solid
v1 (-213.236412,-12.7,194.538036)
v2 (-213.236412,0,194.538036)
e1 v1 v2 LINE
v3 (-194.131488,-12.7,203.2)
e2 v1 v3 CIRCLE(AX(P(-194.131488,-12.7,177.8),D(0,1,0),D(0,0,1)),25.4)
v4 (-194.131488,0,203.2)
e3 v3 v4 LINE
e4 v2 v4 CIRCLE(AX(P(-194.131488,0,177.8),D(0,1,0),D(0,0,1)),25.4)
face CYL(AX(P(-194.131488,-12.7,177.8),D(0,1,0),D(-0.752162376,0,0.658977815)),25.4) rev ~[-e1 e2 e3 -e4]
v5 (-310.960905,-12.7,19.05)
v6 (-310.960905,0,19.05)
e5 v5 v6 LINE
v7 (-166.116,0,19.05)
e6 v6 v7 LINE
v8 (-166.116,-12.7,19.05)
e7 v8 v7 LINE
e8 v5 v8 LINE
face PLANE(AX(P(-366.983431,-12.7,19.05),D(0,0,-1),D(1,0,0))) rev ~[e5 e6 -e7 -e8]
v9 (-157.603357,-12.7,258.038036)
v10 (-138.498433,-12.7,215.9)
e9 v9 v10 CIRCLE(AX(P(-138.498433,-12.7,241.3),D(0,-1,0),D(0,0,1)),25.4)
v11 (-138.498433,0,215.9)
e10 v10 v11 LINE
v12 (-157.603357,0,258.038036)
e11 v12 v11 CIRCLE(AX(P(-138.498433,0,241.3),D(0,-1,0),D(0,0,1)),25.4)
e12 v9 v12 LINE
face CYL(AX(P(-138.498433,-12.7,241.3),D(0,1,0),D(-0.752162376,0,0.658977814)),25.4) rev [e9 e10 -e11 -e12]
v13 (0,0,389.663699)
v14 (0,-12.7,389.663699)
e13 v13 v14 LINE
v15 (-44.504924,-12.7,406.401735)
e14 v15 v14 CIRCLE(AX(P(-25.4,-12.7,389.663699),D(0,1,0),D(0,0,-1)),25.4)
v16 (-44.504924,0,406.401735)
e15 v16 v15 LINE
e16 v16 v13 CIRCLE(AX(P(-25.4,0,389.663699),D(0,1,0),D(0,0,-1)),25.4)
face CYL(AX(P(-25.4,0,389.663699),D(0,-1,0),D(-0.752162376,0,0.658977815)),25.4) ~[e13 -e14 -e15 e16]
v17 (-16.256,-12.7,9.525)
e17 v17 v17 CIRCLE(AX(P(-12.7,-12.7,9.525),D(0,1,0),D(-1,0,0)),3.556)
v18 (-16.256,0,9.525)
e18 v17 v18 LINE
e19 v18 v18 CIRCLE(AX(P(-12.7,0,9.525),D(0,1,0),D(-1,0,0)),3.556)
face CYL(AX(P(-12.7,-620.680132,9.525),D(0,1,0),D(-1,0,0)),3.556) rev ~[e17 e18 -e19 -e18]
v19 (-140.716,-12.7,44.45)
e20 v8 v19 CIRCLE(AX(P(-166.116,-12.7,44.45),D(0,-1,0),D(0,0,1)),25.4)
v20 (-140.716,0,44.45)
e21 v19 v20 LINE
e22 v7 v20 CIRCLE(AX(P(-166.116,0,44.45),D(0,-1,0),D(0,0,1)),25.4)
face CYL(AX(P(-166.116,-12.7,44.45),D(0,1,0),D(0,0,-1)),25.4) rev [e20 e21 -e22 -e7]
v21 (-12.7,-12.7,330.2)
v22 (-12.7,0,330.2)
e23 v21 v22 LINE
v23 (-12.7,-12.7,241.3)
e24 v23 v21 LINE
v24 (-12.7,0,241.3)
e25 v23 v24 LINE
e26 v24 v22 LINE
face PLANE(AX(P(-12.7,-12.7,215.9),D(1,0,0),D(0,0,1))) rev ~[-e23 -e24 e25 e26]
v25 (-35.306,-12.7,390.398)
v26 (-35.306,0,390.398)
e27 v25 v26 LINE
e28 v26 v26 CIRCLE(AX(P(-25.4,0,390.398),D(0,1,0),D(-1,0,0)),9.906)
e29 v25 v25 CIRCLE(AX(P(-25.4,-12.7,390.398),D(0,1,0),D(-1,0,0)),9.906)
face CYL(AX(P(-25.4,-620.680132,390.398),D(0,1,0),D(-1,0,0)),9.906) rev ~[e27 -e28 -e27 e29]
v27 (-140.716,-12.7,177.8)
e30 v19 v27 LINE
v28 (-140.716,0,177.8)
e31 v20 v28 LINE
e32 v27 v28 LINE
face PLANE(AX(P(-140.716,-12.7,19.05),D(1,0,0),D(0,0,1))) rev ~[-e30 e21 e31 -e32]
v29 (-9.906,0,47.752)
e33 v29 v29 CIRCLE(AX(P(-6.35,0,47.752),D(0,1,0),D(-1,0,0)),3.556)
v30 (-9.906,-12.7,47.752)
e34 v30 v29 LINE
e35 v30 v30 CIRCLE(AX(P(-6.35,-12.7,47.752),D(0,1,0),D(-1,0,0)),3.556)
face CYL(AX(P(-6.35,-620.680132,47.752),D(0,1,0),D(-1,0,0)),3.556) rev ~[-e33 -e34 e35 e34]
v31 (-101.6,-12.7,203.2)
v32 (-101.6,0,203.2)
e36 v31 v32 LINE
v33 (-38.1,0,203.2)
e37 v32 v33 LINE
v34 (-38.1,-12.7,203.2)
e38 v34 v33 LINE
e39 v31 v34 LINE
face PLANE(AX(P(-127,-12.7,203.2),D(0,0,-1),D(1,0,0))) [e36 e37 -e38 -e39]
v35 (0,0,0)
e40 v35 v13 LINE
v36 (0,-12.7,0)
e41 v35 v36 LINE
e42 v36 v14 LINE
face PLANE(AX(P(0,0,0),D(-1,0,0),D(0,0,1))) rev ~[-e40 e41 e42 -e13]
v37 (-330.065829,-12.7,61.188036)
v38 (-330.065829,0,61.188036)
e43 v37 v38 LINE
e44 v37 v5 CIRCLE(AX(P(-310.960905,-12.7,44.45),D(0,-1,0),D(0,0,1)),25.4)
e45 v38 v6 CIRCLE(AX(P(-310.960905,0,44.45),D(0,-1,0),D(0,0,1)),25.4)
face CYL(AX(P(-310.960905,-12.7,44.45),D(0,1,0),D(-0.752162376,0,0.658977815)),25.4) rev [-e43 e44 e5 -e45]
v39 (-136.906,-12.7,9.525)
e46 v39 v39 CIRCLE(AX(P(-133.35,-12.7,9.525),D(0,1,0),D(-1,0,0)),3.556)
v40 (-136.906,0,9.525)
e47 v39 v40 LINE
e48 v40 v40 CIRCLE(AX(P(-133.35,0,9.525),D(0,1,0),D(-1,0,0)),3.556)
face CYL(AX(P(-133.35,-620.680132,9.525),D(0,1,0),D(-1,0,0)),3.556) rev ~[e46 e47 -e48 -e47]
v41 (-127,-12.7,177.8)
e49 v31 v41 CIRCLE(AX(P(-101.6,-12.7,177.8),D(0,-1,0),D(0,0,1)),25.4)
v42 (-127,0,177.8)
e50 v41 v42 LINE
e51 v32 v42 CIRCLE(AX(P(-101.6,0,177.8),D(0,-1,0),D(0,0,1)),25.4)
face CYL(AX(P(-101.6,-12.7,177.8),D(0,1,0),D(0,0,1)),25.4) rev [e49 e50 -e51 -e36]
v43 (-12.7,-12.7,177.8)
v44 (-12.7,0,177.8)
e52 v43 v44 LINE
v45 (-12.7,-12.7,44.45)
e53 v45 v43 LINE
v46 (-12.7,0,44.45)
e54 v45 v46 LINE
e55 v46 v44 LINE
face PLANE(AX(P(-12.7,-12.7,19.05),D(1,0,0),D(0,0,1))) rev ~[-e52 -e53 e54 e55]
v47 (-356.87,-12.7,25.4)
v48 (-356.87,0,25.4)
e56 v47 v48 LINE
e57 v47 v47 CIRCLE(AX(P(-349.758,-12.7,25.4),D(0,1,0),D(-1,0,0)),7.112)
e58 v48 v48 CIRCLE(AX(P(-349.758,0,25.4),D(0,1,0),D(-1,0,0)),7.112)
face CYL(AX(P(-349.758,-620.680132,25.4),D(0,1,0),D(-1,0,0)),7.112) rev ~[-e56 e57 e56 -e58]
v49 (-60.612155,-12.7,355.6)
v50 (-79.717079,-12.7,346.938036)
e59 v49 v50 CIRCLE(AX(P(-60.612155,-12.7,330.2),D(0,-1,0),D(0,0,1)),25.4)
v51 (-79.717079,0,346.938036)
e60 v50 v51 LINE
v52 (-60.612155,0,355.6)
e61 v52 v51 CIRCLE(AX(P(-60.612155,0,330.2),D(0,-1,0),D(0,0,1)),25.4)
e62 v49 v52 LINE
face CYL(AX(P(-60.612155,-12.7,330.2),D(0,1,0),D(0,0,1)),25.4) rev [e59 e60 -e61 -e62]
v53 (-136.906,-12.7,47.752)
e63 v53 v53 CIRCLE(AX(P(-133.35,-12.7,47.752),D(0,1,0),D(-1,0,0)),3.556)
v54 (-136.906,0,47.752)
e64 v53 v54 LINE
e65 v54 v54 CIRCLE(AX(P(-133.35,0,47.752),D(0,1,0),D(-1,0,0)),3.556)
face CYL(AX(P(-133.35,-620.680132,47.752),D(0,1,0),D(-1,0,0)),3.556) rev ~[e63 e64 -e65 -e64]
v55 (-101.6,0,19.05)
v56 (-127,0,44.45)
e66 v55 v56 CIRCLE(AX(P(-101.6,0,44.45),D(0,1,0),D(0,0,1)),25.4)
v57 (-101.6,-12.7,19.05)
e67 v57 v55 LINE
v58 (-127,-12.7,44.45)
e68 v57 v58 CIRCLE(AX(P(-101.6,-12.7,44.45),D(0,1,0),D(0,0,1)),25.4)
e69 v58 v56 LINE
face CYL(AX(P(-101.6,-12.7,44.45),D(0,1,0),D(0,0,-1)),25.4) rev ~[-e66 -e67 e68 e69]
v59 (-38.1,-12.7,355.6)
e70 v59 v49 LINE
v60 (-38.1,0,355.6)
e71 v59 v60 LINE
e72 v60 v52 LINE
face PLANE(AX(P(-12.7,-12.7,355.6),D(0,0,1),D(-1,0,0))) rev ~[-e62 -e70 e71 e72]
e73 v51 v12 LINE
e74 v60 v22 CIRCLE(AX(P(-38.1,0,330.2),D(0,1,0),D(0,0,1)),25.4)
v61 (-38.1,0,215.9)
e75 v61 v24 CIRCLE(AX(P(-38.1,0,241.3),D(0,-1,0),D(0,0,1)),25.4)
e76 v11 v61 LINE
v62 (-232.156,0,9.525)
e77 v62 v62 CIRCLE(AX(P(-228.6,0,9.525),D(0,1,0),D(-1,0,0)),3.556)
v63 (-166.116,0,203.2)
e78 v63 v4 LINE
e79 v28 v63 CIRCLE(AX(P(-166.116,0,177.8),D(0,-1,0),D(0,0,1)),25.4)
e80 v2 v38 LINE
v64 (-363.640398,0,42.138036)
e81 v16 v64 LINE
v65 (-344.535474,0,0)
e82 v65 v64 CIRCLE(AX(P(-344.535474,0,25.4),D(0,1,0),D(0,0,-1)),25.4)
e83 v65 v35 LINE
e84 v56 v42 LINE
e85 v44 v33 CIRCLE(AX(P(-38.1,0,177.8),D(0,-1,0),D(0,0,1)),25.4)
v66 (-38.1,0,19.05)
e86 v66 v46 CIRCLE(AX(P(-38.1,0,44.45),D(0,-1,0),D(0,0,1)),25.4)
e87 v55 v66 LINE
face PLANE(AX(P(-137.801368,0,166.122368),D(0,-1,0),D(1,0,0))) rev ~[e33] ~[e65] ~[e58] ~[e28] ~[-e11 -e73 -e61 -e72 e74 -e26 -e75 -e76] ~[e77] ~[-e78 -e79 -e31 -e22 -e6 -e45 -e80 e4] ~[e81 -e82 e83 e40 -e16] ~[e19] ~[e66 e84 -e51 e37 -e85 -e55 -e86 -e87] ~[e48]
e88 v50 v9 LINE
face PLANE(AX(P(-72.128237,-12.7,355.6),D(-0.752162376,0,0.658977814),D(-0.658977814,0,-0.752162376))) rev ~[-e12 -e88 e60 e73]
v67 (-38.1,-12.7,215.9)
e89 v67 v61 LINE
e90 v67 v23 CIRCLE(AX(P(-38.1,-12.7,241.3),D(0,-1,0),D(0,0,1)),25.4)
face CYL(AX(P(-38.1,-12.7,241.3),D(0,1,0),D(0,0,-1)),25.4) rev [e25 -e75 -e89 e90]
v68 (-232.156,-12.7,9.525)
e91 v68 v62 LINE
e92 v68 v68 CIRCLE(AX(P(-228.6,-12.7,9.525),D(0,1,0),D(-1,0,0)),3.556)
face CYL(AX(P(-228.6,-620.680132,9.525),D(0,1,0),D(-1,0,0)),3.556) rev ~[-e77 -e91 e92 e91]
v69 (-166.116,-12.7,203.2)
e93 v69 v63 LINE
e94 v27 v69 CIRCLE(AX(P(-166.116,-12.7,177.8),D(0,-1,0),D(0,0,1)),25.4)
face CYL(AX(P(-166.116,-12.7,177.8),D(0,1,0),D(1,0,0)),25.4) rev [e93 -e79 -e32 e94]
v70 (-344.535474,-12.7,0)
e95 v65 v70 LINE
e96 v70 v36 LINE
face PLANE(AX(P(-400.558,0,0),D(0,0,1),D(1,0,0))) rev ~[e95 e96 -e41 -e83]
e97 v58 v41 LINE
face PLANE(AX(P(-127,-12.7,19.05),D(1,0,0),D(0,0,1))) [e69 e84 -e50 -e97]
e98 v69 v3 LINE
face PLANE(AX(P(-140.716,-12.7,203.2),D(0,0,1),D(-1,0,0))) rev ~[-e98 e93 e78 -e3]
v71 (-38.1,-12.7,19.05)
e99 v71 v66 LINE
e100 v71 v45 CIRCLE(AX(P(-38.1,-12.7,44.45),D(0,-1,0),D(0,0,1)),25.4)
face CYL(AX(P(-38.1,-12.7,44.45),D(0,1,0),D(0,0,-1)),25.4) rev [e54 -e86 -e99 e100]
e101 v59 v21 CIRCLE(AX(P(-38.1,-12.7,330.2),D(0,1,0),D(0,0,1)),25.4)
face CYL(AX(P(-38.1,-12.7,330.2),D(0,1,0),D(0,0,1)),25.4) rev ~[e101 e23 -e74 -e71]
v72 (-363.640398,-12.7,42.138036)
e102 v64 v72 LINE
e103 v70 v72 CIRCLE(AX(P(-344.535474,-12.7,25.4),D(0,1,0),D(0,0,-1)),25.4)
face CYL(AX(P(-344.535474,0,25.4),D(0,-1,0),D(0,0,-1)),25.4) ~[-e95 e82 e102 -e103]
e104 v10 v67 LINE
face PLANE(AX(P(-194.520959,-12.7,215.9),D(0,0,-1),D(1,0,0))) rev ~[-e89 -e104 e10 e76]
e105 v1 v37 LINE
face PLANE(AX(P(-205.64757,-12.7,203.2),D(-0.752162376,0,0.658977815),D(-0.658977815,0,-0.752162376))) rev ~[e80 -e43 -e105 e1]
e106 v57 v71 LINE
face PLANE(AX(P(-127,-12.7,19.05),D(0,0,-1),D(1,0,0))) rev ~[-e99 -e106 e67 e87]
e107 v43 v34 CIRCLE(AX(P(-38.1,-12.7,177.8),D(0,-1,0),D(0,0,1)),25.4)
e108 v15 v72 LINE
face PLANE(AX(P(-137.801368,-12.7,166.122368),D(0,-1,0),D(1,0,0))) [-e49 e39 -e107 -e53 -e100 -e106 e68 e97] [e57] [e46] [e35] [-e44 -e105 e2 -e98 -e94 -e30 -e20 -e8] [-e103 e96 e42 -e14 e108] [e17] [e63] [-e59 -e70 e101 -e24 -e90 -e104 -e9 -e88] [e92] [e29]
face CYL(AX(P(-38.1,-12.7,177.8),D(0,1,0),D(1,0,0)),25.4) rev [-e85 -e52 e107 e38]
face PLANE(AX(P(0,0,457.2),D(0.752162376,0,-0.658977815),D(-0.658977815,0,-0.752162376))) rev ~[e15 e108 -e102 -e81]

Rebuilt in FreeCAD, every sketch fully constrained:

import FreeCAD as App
import Part
import Sketcher
Q = App.Units.Quantity


def edges_at(feature, points):
    """Names of the edges that pass closest to the given points."""
    edges = feature.Shape.Edges
    near = lambda p: min(range(len(edges)), key=lambda i: edges[i].distToShape(Part.Vertex(*p))[0])
    return sorted({f"Edge{near(p) + 1}" for p in points})


def add_polygon(sketch, points):
    """Adds a closed chain of lines whose ends are joined by coincident constraints."""
    first, n = sketch.GeometryCount, len(points)
    for a, b in zip(points, points[1:] + points[:1]):
        sketch.addGeometry(Part.LineSegment(App.Vector(*a, 0), App.Vector(*b, 0)), False)
    for i in range(n):
        sketch.addConstraint(Sketcher.Constraint("Coincident", first + i, 2, first + (i + 1) % n, 1))

doc = App.newDocument("Part")
body = doc.addObject("PartDesign::Body", "Body")

# Sketch on XZ plane
sketch1 = body.newObject("Sketcher::SketchObject", "Sketch")
sketch1.AttachmentSupport = (doc.getObject("XZ_Plane"), [""])
sketch1.MapMode = "FlatFace"
add_polygon(sketch1, [(-401, 0), (0, 0), (0, 457)])  # lines 0-2
sketch1.addConstraint([
    Sketcher.Constraint("Horizontal", 0),
    Sketcher.Constraint("Vertical", 1),
    Sketcher.Constraint("Coincident", 0, 2, -1, 1),
    Sketcher.Constraint("DistanceY", 1, 1, 1, 2, Q("18 in")),
    Sketcher.Constraint("DistanceX", 0, 1, 0, 2, Q("15.77 in")),
])
pad1 = body.newObject("PartDesign::Pad", "Pad")
pad1.Profile = sketch1
pad1.Length = Q("0.5 in")

# Sketch on XZ plane
sketch2 = body.newObject("Sketcher::SketchObject", "Sketch001")
sketch2.AttachmentSupport = (doc.getObject("XZ_Plane"), [""])
sketch2.MapMode = "FlatFace"
sketch2.AttachmentOffset = App.Placement(App.Vector(0, 0, 0.5 * 25.4), App.Rotation())
add_polygon(sketch2, [(-127, 203), (-127, 19), (-13, 19), (-13, 203)])  # lines 0-3
add_polygon(sketch2, [(-206, 203), (-367, 19), (-141, 19), (-141, 203)])  # lines 4-7
add_polygon(sketch2, [(-13, 356), (-72, 356), (-195, 216), (-13, 216)])  # lines 8-11
sketch2.addConstraint([
    Sketcher.Constraint("Vertical", 0),
    Sketcher.Constraint("Horizontal", 1),
    Sketcher.Constraint("Vertical", 2),
    Sketcher.Constraint("Horizontal", 3),
    Sketcher.Constraint("Horizontal", 5),
    Sketcher.Constraint("Vertical", 6),
    Sketcher.Constraint("Horizontal", 7),
    Sketcher.Constraint("Horizontal", 8),
    Sketcher.Constraint("Horizontal", 10),
    Sketcher.Constraint("Vertical", 11),
    Sketcher.Constraint("Parallel", 4, 9),
    Sketcher.Constraint("Horizontal", 1, 2, 4, 2),
    Sketcher.Constraint("Horizontal", 3, 2, 6, 2),
    Sketcher.Constraint("Vertical", 2, 2, 10, 2),
    Sketcher.Constraint("DistanceX", 1, 1, 1, 2, Q("4.5 in")),
    Sketcher.Constraint("DistanceY", 11, 1, 11, 2, Q("5.5 in")),
    Sketcher.Constraint("DistanceX", 0, 2, -1, 1, Q("5 in")),
    Sketcher.Constraint("DistanceY", -1, 1, 2, 2, Q("8 in")),
    Sketcher.Constraint("DistanceY", -1, 1, 8, 2, Q("14 in")),
    Sketcher.Constraint("DistanceY", 0, 2, 0, 1, Q("7.25 in")),
    Sketcher.Constraint("DistanceX", 5, 2, -1, 1, Q("5.54 in")),
    Sketcher.Constraint("DistanceX", 5, 1, 5, 2, 226.267431),
    Sketcher.Constraint("DistanceX", 7, 2, 7, 1, 64.93157),
    Sketcher.Constraint("DistanceX", 10, 1, 10, 2, 181.820959),
])
pocket1 = body.newObject("PartDesign::Pocket", "Pocket")
pocket1.Profile = sketch2
pocket1.Type = "ThroughAll"
doc.recompute()

fillet = body.newObject("PartDesign::Fillet", "Fillet")
fillet.Base = (pocket1, edges_at(pocket1, [
    (-205.648, -6.35, 203.2),
    (-140.716, -6.35, 203.2),
    (-127, -6.35, 203.2),
    (-12.7, -6.35, 203.2),
    (-12.7, -6.35, 355.6),
    (-72.128, -6.35, 355.6),
    (-366.983, -6.35, 19.05),
    (-140.716, -6.35, 19.05),
    (-127, -6.35, 19.05),
    (-12.7, -6.35, 19.05),
    (-194.521, -6.35, 215.9),
    (-12.7, -6.35, 215.9),
]))
fillet.Radius = Q("1 in")

# Sketch on XZ plane
sketch3 = body.newObject("Sketcher::SketchObject", "Sketch002")
sketch3.AttachmentSupport = (doc.getObject("XZ_Plane"), [""])
sketch3.MapMode = "FlatFace"
sketch3.AttachmentOffset = App.Placement(App.Vector(0, 0, 0.5 * 25.4), App.Rotation())
sketch3.addGeometry(Part.Circle(App.Vector(-350, 25, 0), App.Vector(0, 0, 1), 7), False)
sketch3.addConstraint([
    Sketcher.Constraint("Diameter", 0, Q("0.56 in")),
    Sketcher.Constraint("DistanceY", -1, 1, 0, 3, Q("1 in")),
    Sketcher.Constraint("DistanceX", 0, 3, -1, 1, Q("13.77 in")),
])
doc.recompute()
hole = body.newObject("PartDesign::Hole", "Hole")
hole.Profile = sketch3
hole.ThreadType = "None"
hole.Diameter = Q("0.56 in")
hole.DepthType = "ThroughAll"

# Sketch on XZ plane
sketch4 = body.newObject("Sketcher::SketchObject", "Sketch003")
sketch4.AttachmentSupport = (doc.getObject("XZ_Plane"), [""])
sketch4.MapMode = "FlatFace"
sketch4.AttachmentOffset = App.Placement(App.Vector(0, 0, 0.5 * 25.4), App.Rotation())
sketch4.addGeometry(Part.Circle(App.Vector(-25, 390, 0), App.Vector(0, 0, 1), 10), False)
sketch4.addConstraint([
    Sketcher.Constraint("Diameter", 0, Q("0.78 in")),
    Sketcher.Constraint("DistanceX", 0, 3, -1, 1, Q("1 in")),
    Sketcher.Constraint("DistanceY", -1, 1, 0, 3, Q("15.37 in")),
])
doc.recompute()
hole2 = body.newObject("PartDesign::Hole", "Hole001")
hole2.Profile = sketch4
hole2.ThreadType = "None"
hole2.Diameter = Q("0.78 in")
hole2.DepthType = "ThroughAll"

# Sketch on XZ plane
sketch5 = body.newObject("Sketcher::SketchObject", "Sketch004")
sketch5.AttachmentSupport = (doc.getObject("XZ_Plane"), [""])
sketch5.MapMode = "FlatFace"
sketch5.AttachmentOffset = App.Placement(App.Vector(0, 0, 0.5 * 25.4), App.Rotation())
sketch5.addGeometry([
    Part.Circle(App.Vector(-228.6, 9.5, 0), App.Vector(0, 0, 1), 3.6),  # 0
    Part.Circle(App.Vector(-133.3, 9.5, 0), App.Vector(0, 0, 1), 3.6),  # 1
    Part.Circle(App.Vector(-133.3, 47.8, 0), App.Vector(0, 0, 1), 3.6),  # 2
    Part.Circle(App.Vector(-6.3, 47.8, 0), App.Vector(0, 0, 1), 3.6),  # 3
    Part.Circle(App.Vector(-12.7, 9.5, 0), App.Vector(0, 0, 1), 3.6),  # 4
], False)
sketch5.addConstraint([
    Sketcher.Constraint("Equal", 0, 1),
    Sketcher.Constraint("Equal", 1, 2),
    Sketcher.Constraint("Equal", 2, 3),
    Sketcher.Constraint("Equal", 3, 4),
    Sketcher.Constraint("Horizontal", 0, 3, 1, 3),
    Sketcher.Constraint("Horizontal", 2, 3, 3, 3),
    Sketcher.Constraint("Horizontal", 1, 3, 4, 3),
    Sketcher.Constraint("Vertical", 1, 3, 2, 3),
    Sketcher.Constraint("Diameter", 0, Q("0.28 in")),
    Sketcher.Constraint("DistanceX", 0, 3, -1, 1, Q("9 in")),
    Sketcher.Constraint("DistanceX", 2, 3, 3, 3, Q("5 in")),
    Sketcher.Constraint("DistanceX", 4, 3, -1, 1, Q("0.5 in")),
    Sketcher.Constraint("DistanceX", 1, 3, -1, 1, Q("5.25 in")),
    Sketcher.Constraint("DistanceY", -1, 1, 2, 3, Q("1.88 in")),
    Sketcher.Constraint("DistanceY", -1, 1, 0, 3, Q("0.375 in")),
])
doc.recompute()
hole3 = body.newObject("PartDesign::Hole", "Hole002")
hole3.Profile = sketch5
hole3.ThreadType = "None"
hole3.Diameter = Q("0.28 in")
hole3.DepthType = "ThroughAll"
doc.recompute()

fillet2 = body.newObject("PartDesign::Fillet", "Fillet001")
fillet2.Base = (hole3, edges_at(hole3, [(0, -6.35, 457.2), (-400.558, -6.35, 0)]))
fillet2.Radius = Q("1 in")

doc.recompute()
